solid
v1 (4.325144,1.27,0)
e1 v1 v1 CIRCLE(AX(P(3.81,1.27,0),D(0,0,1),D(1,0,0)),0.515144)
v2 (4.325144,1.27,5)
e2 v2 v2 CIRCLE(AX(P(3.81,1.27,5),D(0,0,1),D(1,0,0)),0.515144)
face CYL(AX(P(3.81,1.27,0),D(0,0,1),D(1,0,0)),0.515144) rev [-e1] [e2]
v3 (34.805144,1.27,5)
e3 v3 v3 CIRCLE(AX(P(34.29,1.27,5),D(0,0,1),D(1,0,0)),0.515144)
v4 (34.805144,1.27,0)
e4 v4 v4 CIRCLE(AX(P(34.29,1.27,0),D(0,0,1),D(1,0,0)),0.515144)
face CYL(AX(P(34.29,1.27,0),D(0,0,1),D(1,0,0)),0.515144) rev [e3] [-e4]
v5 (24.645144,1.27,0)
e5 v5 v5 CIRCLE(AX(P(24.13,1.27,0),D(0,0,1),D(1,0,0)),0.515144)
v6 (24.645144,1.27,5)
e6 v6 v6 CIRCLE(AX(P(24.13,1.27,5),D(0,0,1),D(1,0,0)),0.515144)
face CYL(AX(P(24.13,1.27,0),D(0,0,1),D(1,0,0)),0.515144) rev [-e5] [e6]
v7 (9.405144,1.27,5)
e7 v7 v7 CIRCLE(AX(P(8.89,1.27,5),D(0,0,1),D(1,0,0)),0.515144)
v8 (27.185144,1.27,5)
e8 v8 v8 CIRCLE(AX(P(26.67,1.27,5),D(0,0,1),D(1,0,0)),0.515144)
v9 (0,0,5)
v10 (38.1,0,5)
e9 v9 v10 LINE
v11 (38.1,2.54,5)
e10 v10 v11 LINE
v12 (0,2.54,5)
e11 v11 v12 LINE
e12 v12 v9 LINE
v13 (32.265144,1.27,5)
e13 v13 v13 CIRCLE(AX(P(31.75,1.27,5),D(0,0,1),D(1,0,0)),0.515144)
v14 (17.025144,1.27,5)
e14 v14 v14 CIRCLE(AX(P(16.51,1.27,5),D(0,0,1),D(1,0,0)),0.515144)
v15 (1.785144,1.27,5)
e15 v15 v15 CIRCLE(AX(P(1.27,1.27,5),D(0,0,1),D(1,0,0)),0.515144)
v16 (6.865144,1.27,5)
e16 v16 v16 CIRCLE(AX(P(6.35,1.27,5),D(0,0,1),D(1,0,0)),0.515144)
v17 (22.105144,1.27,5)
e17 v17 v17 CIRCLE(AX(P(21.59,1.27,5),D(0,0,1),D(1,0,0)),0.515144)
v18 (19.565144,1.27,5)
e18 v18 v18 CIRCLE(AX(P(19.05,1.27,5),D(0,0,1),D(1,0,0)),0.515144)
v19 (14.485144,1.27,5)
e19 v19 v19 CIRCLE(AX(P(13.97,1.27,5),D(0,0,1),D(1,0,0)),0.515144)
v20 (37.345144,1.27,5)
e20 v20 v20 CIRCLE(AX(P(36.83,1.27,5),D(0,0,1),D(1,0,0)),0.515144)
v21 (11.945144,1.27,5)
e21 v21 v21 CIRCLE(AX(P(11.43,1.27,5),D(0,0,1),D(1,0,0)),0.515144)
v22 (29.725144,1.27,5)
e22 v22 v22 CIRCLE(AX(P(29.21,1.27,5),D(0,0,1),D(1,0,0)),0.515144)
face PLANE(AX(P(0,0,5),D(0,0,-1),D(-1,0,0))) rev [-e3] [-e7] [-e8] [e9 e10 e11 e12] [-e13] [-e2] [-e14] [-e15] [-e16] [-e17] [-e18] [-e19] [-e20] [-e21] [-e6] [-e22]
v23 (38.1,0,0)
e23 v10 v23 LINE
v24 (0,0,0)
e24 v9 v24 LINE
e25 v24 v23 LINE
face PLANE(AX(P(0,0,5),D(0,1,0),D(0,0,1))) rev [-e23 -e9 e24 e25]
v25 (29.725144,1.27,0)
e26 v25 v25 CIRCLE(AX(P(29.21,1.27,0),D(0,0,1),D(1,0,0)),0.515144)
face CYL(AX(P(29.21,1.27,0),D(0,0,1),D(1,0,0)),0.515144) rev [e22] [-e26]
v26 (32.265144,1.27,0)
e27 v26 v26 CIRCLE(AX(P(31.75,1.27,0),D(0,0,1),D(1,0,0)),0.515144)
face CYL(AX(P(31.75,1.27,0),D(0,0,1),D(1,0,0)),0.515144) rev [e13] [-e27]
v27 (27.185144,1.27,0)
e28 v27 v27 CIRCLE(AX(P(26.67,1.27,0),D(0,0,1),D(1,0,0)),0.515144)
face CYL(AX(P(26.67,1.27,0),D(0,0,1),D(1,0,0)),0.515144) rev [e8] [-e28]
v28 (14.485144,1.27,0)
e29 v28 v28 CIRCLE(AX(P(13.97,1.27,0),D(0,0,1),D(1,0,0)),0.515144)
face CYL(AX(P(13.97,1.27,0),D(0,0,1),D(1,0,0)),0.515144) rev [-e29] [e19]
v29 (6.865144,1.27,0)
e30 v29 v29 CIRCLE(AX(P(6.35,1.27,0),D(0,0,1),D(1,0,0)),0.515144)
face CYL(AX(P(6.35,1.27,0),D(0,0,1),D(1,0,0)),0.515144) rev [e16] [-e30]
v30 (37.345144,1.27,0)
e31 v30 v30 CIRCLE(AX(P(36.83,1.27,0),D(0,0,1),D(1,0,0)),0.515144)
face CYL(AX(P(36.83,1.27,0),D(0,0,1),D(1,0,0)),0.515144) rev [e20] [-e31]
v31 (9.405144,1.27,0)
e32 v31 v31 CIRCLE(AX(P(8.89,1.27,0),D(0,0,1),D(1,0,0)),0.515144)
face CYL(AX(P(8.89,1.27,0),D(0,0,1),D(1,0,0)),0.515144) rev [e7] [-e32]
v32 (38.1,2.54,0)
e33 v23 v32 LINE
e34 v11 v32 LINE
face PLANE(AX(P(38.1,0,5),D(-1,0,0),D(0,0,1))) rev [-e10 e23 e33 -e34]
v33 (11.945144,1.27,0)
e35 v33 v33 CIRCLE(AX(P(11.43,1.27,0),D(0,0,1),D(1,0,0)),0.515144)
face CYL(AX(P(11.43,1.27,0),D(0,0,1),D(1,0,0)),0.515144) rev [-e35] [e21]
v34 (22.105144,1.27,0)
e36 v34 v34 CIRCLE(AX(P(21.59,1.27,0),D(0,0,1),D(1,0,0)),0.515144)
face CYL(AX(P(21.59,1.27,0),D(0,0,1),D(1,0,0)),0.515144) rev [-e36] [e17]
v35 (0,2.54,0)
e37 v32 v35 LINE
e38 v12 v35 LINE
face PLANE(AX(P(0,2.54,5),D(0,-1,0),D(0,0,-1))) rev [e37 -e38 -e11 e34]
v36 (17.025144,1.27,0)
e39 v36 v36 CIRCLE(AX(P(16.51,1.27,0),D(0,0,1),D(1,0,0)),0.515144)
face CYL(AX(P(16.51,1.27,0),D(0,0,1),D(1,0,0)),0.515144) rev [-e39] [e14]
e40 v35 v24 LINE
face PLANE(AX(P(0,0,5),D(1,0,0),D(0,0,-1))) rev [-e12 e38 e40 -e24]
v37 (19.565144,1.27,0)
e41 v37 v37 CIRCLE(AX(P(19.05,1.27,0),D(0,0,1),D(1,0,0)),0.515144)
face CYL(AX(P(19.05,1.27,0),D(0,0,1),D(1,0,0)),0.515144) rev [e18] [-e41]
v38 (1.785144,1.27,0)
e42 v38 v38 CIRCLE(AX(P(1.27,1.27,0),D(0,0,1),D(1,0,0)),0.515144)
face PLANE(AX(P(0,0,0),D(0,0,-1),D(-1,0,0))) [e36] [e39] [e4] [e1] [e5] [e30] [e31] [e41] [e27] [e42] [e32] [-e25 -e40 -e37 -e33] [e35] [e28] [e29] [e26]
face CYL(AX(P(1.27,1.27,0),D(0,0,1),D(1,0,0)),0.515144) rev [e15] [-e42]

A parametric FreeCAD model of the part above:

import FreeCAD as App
import Part
import Sketcher

V = App.Vector
Q = App.Units.Quantity

doc = App.newDocument("Part")
params = doc.addObject("Spreadsheet::Sheet", "Params")
for row, (alias, value) in enumerate([
    ("sketch1_width", "1.5 in"),
    ("sketch1_height", "0.1 in"),
    ("pad1_length", "5 mm"),
], start=1):
    params.set(f"A{row}", alias)
    params.set(f"B{row}", "=" + value)
    params.setAlias(f"B{row}", alias)

body = doc.addObject("PartDesign::Body", "Body")

# Sketch on XY plane
sketch1 = doc.addObject("Sketcher::SketchObject", "Sketch")
body.addObject(sketch1)
sketch1.AttachmentSupport = (doc.XY_Plane, [""])
sketch1.MapMode = "FlatFace"
sketch1.addGeometry([
    Part.LineSegment(V(0, 2.54, 0), V(0, 0, 0)),
    Part.LineSegment(V(0, 0, 0), V(38.1, 0, 0)),
    Part.LineSegment(V(38.1, 0, 0), V(38.1, 2.54, 0)),
    Part.LineSegment(V(38.1, 2.54, 0), V(0, 2.54, 0)),
], False)
sketch1.addConstraint([
    Sketcher.Constraint("Coincident", 0, 2, 1, 1),
    Sketcher.Constraint("Coincident", 1, 2, 2, 1),
    Sketcher.Constraint("Coincident", 2, 2, 3, 1),
    Sketcher.Constraint("Coincident", 3, 2, 0, 1),
    Sketcher.Constraint("Vertical", 0),
    Sketcher.Constraint("Horizontal", 1),
    Sketcher.Constraint("Vertical", 2),
    Sketcher.Constraint("Horizontal", 3),
    Sketcher.Constraint("Coincident", 0, 2, -1, 1),
    Sketcher.Constraint("DistanceX", 1, 1, 1, 2, Q("1.5 in")),
    Sketcher.Constraint("DistanceY", 0, 2, 0, 1, Q("0.1 in")),
])
sketch1.setExpression("Constraints[9]", "Params.sketch1_width")
sketch1.setExpression("Constraints[10]", "Params.sketch1_height")
pad1 = doc.addObject("PartDesign::Pad", "Pad")
body.addObject(pad1)
pad1.Profile = sketch1
pad1.setExpression("Length", "Params.pad1_length")

# Sketch on XY plane
sketch2 = doc.addObject("Sketcher::SketchObject", "Sketch001")
body.addObject(sketch2)
sketch2.AttachmentSupport = (doc.XY_Plane, [""])
sketch2.MapMode = "FlatFace"
sketch2.AttachmentOffset = App.Placement(V(0, 0, 5), App.Rotation())
sketch2.addGeometry([
    Part.Circle(V(1.27, 1.27, 0), V(0, 0, 1), 0.515144),  # 0
    Part.Circle(V(3.81, 1.27, 0), V(0, 0, 1), 0.515144),  # 1
    Part.Circle(V(6.35, 1.27, 0), V(0, 0, 1), 0.515144),  # 2
    Part.Circle(V(8.89, 1.27, 0), V(0, 0, 1), 0.515144),  # 3
    Part.Circle(V(11.43, 1.27, 0), V(0, 0, 1), 0.515144),  # 4
    Part.Circle(V(13.97, 1.27, 0), V(0, 0, 1), 0.515144),  # 5
    Part.Circle(V(16.51, 1.27, 0), V(0, 0, 1), 0.515144),  # 6
    Part.Circle(V(19.05, 1.27, 0), V(0, 0, 1), 0.515144),  # 7
    Part.Circle(V(21.59, 1.27, 0), V(0, 0, 1), 0.515144),  # 8
    Part.Circle(V(24.13, 1.27, 0), V(0, 0, 1), 0.515144),  # 9
    Part.Circle(V(26.67, 1.27, 0), V(0, 0, 1), 0.515144),  # 10
    Part.Circle(V(29.21, 1.27, 0), V(0, 0, 1), 0.515144),  # 11
    Part.Circle(V(31.75, 1.27, 0), V(0, 0, 1), 0.515144),  # 12
    Part.Circle(V(34.29, 1.27, 0), V(0, 0, 1), 0.515144),  # 13
    Part.Circle(V(36.83, 1.27, 0), V(0, 0, 1), 0.515144),  # 14
], False)
sketch2.addConstraint([
    Sketcher.Constraint("Equal", 0, 1),
    Sketcher.Constraint("Equal", 1, 2),
    Sketcher.Constraint("Equal", 2, 3),
    Sketcher.Constraint("Equal", 3, 4),
    Sketcher.Constraint("Equal", 4, 5),
    Sketcher.Constraint("Equal", 5, 6),
    Sketcher.Constraint("Equal", 6, 7),
    Sketcher.Constraint("Equal", 7, 8),
    Sketcher.Constraint("Equal", 8, 9),
    Sketcher.Constraint("Equal", 9, 10),
    Sketcher.Constraint("Equal", 10, 11),
    Sketcher.Constraint("Equal", 11, 12),
    Sketcher.Constraint("Equal", 12, 13),
    Sketcher.Constraint("Equal", 13, 14),
    Sketcher.Constraint("Horizontal", 0, 3, 1, 3),
    Sketcher.Constraint("Horizontal", 1, 3, 2, 3),
    Sketcher.Constraint("Horizontal", 2, 3, 3, 3),
    Sketcher.Constraint("Horizontal", 3, 3, 4, 3),
    Sketcher.Constraint("Horizontal", 4, 3, 5, 3),
    Sketcher.Constraint("Horizontal", 5, 3, 6, 3),
    Sketcher.Constraint("Horizontal", 6, 3, 7, 3),
    Sketcher.Constraint("Horizontal", 7, 3, 8, 3),
    Sketcher.Constraint("Horizontal", 8, 3, 9, 3),
    Sketcher.Constraint("Horizontal", 9, 3, 10, 3),
    Sketcher.Constraint("Horizontal", 10, 3, 11, 3),
    Sketcher.Constraint("Horizontal", 11, 3, 12, 3),
    Sketcher.Constraint("Horizontal", 12, 3, 13, 3),
    Sketcher.Constraint("Horizontal", 13, 3, 14, 3),
    Sketcher.Constraint("DistanceX", 0, 3, 1, 3, Q("0.1 in")),
    Sketcher.Constraint("DistanceX", 1, 3, 2, 3, Q("0.1 in")),
    Sketcher.Constraint("DistanceX", 2, 3, 3, 3, Q("0.1 in")),
    Sketcher.Constraint("DistanceX", 3, 3, 4, 3, Q("0.1 in")),
    Sketcher.Constraint("DistanceX", 4, 3, 5, 3, Q("0.1 in")),
    Sketcher.Constraint("DistanceX", 5, 3, 6, 3, Q("0.1 in")),
    Sketcher.Constraint("DistanceX", 6, 3, 7, 3, Q("0.1 in")),
    Sketcher.Constraint("DistanceX", 7, 3, 8, 3, Q("0.1 in")),
    Sketcher.Constraint("DistanceX", 8, 3, 9, 3, Q("0.1 in")),
    Sketcher.Constraint("DistanceX", 9, 3, 10, 3, Q("0.1 in")),
    Sketcher.Constraint("DistanceX", 10, 3, 11, 3, Q("0.1 in")),
    Sketcher.Constraint("DistanceX", 11, 3, 12, 3, Q("0.1 in")),
    Sketcher.Constraint("DistanceX", 12, 3, 13, 3, Q("0.1 in")),
    Sketcher.Constraint("DistanceX", 13, 3, 14, 3, Q("0.1 in")),
    Sketcher.Constraint("DistanceX", -1, 1, 0, 3, Q("0.05 in")),
    Sketcher.Constraint("DistanceY", -1, 1, 0, 3, Q("0.05 in")),
    Sketcher.Constraint("Diameter", 0, Q("1.030288 mm")),
])
pocket1 = doc.addObject("PartDesign::Pocket", "Pocket")
body.addObject(pocket1)
pocket1.Profile = sketch2
pocket1.Type = "ThroughAll"

doc.recompute()
